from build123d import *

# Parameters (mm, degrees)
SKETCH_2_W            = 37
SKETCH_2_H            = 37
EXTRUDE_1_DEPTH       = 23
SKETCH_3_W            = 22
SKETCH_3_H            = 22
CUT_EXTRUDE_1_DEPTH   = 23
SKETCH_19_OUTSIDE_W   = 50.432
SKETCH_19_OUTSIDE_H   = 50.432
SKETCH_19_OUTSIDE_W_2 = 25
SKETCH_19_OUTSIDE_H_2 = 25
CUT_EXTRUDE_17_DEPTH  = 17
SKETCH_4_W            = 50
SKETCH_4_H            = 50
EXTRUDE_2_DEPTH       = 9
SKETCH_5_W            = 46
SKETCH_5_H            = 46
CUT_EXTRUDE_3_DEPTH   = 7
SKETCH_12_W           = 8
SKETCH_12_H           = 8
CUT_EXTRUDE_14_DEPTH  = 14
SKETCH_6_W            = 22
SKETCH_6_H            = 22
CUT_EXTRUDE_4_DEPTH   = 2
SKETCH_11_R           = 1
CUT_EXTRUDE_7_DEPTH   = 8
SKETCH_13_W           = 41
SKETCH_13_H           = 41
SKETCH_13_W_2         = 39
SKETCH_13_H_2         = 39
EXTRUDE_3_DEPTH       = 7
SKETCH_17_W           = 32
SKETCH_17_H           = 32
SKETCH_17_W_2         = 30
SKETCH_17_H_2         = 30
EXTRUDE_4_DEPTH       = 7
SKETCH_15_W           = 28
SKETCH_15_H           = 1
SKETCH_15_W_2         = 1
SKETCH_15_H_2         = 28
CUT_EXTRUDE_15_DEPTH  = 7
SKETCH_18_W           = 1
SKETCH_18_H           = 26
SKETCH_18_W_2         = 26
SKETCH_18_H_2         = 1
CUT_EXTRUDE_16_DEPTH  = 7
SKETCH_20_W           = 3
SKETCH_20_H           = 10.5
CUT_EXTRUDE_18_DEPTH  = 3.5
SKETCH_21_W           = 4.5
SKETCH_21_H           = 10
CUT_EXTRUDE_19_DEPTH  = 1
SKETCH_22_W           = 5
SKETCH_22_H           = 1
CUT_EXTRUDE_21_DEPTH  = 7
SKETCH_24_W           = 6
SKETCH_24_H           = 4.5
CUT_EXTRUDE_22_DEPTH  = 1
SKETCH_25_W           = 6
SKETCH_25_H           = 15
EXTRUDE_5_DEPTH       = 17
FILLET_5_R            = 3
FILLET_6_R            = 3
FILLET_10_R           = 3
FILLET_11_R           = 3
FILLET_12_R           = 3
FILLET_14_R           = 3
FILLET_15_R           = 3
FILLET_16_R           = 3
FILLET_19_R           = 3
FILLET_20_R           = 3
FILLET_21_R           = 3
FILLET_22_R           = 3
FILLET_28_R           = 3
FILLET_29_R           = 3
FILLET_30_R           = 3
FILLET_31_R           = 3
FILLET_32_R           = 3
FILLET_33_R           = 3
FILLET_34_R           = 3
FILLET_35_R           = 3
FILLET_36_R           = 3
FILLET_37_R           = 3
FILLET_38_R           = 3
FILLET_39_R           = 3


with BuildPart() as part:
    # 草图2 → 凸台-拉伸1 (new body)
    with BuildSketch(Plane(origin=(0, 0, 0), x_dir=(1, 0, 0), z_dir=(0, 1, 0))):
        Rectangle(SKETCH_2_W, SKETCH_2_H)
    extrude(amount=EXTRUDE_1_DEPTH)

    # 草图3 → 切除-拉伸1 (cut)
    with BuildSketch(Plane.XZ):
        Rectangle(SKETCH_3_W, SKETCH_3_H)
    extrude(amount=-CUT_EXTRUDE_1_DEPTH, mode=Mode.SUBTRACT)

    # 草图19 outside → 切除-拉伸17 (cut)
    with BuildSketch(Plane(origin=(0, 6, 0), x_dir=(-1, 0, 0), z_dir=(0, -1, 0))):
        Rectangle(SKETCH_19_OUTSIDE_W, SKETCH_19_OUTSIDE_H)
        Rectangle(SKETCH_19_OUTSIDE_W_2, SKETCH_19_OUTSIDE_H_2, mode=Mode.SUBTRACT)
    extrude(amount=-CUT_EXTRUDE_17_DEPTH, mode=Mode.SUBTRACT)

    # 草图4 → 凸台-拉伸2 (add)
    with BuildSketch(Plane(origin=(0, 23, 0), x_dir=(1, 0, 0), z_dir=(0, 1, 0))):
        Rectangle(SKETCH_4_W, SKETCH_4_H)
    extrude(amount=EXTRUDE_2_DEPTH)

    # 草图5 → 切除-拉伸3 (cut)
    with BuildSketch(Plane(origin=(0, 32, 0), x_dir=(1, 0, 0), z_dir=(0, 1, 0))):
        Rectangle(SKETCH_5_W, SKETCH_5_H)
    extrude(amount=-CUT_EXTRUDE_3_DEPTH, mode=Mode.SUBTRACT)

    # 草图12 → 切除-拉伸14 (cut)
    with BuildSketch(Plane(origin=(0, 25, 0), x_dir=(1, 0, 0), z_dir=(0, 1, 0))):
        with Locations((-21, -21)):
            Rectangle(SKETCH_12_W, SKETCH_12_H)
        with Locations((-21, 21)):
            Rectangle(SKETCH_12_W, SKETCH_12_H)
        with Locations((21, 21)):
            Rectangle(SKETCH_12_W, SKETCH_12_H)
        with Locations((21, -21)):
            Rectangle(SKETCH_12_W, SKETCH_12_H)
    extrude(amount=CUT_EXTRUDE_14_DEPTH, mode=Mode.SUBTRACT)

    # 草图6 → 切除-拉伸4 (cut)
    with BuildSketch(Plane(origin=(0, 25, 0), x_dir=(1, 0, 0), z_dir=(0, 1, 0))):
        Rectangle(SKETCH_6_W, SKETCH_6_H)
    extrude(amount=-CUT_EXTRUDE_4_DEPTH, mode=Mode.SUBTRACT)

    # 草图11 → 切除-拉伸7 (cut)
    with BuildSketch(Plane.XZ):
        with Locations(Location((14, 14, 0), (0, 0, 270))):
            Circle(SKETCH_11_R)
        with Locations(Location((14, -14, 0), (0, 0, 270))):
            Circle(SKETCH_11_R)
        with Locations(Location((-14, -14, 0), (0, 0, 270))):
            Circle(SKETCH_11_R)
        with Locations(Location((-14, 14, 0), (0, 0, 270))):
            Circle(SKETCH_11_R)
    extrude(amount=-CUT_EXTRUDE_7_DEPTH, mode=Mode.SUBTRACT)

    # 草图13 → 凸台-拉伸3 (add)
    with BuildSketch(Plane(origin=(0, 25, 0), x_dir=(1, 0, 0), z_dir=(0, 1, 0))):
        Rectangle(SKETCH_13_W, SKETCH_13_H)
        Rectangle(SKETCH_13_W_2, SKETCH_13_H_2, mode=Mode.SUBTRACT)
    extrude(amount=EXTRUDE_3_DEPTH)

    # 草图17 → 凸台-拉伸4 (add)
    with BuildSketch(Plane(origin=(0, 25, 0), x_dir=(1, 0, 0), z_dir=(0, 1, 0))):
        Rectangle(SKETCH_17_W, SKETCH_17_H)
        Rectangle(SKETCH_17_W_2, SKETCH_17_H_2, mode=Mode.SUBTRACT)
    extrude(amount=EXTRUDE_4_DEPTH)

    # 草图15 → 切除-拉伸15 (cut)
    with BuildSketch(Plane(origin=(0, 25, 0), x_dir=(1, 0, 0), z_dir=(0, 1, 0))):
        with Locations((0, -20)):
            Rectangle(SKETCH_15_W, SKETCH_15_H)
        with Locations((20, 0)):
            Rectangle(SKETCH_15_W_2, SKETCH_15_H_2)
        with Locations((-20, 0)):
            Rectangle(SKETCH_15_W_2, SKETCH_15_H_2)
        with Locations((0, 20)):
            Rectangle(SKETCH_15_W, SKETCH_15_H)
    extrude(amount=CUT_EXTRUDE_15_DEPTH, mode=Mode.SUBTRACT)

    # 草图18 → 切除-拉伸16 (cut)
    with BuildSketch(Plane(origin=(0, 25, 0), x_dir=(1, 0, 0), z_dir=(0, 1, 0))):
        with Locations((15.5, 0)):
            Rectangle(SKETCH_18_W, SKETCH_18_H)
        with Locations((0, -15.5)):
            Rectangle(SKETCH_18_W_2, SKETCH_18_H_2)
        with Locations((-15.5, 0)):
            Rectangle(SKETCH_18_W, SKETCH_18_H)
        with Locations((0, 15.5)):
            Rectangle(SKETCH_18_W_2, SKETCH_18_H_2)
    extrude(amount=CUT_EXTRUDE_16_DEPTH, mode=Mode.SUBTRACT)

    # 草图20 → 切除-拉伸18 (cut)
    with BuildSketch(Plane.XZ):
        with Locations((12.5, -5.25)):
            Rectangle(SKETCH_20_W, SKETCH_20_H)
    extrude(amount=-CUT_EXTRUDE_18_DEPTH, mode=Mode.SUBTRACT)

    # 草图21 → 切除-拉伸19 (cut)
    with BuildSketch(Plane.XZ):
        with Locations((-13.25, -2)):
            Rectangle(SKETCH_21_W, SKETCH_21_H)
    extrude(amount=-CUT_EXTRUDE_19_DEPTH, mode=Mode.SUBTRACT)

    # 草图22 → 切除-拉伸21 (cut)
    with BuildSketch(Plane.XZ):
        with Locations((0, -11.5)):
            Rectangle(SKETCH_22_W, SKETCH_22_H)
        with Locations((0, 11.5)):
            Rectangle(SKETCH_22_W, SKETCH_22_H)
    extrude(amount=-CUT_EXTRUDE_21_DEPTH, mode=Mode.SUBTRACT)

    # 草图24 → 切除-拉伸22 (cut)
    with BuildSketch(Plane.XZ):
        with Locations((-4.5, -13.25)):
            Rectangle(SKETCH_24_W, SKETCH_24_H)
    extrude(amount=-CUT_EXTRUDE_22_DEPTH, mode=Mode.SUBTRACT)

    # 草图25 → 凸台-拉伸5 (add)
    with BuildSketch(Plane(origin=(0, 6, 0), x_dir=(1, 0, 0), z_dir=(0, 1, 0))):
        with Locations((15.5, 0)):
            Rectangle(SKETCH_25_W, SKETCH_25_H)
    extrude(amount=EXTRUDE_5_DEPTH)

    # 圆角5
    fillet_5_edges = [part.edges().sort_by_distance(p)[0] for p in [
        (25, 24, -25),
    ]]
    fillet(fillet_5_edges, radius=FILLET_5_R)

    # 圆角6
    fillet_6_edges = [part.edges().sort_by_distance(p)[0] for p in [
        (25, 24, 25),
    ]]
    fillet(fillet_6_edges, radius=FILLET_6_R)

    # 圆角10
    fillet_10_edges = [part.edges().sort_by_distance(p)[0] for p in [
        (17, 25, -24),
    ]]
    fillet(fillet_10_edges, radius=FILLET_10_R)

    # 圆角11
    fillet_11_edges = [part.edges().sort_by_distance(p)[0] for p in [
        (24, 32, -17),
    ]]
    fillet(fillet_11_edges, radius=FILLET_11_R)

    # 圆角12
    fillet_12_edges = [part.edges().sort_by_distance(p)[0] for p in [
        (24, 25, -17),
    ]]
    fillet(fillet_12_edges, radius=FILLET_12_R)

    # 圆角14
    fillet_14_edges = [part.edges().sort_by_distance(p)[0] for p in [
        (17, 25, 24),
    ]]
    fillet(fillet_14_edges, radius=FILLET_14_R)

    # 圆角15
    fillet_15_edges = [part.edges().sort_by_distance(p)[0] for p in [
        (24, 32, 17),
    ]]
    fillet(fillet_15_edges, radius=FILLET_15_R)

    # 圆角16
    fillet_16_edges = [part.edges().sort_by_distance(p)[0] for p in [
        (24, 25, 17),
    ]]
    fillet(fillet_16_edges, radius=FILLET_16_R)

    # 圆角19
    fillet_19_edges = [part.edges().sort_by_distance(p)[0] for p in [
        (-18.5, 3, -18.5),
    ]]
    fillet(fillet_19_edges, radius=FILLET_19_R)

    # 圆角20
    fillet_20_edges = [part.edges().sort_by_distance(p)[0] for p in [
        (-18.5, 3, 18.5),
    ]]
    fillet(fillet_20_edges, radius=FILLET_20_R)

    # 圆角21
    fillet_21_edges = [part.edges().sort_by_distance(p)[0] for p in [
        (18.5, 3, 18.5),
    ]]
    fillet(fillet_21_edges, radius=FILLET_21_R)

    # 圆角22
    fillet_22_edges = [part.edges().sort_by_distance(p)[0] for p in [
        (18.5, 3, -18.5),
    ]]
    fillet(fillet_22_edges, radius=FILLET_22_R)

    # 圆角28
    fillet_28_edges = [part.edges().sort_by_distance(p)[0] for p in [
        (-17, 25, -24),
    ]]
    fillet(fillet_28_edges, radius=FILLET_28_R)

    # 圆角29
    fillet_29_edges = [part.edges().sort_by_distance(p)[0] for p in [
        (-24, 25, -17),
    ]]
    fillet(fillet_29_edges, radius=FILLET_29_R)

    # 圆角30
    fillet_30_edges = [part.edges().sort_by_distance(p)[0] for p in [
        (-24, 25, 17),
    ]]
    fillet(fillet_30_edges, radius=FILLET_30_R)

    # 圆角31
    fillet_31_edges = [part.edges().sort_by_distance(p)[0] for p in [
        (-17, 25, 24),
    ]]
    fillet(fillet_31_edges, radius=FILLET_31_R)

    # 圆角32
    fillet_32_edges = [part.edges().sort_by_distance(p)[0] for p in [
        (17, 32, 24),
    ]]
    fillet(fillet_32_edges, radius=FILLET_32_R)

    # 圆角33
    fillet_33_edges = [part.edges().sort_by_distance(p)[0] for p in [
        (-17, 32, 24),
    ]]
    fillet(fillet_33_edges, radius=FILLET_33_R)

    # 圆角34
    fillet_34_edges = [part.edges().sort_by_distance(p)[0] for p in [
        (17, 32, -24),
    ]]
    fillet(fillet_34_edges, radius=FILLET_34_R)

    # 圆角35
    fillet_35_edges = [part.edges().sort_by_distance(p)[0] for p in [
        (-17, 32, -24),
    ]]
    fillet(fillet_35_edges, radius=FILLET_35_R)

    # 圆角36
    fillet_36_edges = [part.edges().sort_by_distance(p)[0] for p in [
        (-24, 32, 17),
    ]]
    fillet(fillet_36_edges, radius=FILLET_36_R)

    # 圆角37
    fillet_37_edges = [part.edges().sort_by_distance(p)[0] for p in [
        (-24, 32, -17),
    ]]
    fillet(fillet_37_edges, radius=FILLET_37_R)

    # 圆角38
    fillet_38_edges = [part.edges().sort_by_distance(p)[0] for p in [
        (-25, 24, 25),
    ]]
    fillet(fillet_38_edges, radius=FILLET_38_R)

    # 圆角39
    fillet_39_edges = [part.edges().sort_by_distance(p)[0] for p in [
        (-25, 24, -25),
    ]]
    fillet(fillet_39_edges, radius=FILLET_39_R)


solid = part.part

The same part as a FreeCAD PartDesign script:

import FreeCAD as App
import Part
import Sketcher

V = App.Vector
Q = App.Units.Quantity


def edges_at(feature, points):
    """Names of the edges that pass closest to the given points."""
    edges = feature.Shape.Edges
    near = lambda p: min(range(len(edges)), key=lambda i: edges[i].distToShape(Part.Vertex(*p))[0])
    return sorted({f"Edge{near(p) + 1}" for p in points})

doc = App.newDocument("Part")
body = doc.addObject("PartDesign::Body", "Body")

# Sketch on XZ plane
sketch1 = body.newObject("Sketcher::SketchObject", "Sketch")
sketch1.AttachmentSupport = (doc.getObject("XZ_Plane"), [""])
sketch1.MapMode = "FlatFace"
sketch1.addGeometry([
    Part.LineSegment(V(-18.5, -18.5, 0), V(-18.5, 18.5, 0)),
    Part.LineSegment(V(-18.5, 18.5, 0), V(18.5, 18.5, 0)),
    Part.LineSegment(V(18.5, 18.5, 0), V(18.5, -18.5, 0)),
    Part.LineSegment(V(18.5, -18.5, 0), V(-18.5, -18.5, 0)),
], False)
sketch1.addConstraint([
    Sketcher.Constraint("Coincident", 0, 2, 1, 1),
    Sketcher.Constraint("Coincident", 1, 2, 2, 1),
    Sketcher.Constraint("Coincident", 2, 2, 3, 1),
    Sketcher.Constraint("Coincident", 3, 2, 0, 1),
    Sketcher.Constraint("Vertical", 0),
    Sketcher.Constraint("Horizontal", 1),
    Sketcher.Constraint("Vertical", 2),
    Sketcher.Constraint("Horizontal", 3),
    Sketcher.Constraint("Symmetric", 0, 2, 2, 2, -1, 1),
    Sketcher.Constraint("Equal", 3, 0),
    Sketcher.Constraint("DistanceX", 1, 1, 1, 2, Q("37 mm")),
])
pad1 = body.newObject("PartDesign::Pad", "Pad")
pad1.Profile = sketch1
pad1.Length = 23
pad1.Reversed = True

# Sketch on XZ plane
sketch2 = body.newObject("Sketcher::SketchObject", "Sketch001")
sketch2.AttachmentSupport = (doc.getObject("XZ_Plane"), [""])
sketch2.MapMode = "FlatFace"
sketch2.addGeometry([
    Part.LineSegment(V(-11, 11, 0), V(-11, -11, 0)),
    Part.LineSegment(V(-11, -11, 0), V(11, -11, 0)),
    Part.LineSegment(V(11, -11, 0), V(11, 11, 0)),
    Part.LineSegment(V(11, 11, 0), V(-11, 11, 0)),
], False)
sketch2.addConstraint([
    Sketcher.Constraint("Coincident", 0, 2, 1, 1),
    Sketcher.Constraint("Coincident", 1, 2, 2, 1),
    Sketcher.Constraint("Coincident", 2, 2, 3, 1),
    Sketcher.Constraint("Coincident", 3, 2, 0, 1),
    Sketcher.Constraint("Vertical", 0),
    Sketcher.Constraint("Horizontal", 1),
    Sketcher.Constraint("Vertical", 2),
    Sketcher.Constraint("Horizontal", 3),
    Sketcher.Constraint("Symmetric", 0, 2, 2, 2, -1, 1),
    Sketcher.Constraint("Equal", 3, 0),
    Sketcher.Constraint("DistanceX", 1, 1, 1, 2, Q("22 mm")),
])
pocket1 = body.newObject("PartDesign::Pocket", "Pocket")
pocket1.Profile = sketch2
pocket1.Length = 23

# Sketch on XZ plane
sketch3 = body.newObject("Sketcher::SketchObject", "Sketch002")
sketch3.AttachmentSupport = (doc.getObject("XZ_Plane"), [""])
sketch3.MapMode = "FlatFace"
sketch3.AttachmentOffset = App.Placement(V(0, 0, -6), App.Rotation())
sketch3.addGeometry([
    Part.LineSegment(V(25.216, -25.216, 0), V(25.216, 25.216, 0)),  # 0
    Part.LineSegment(V(25.216, 25.216, 0), V(-25.216, 25.216, 0)),  # 1
    Part.LineSegment(V(-25.216, 25.216, 0), V(-25.216, -25.216, 0)),  # 2
    Part.LineSegment(V(-25.216, -25.216, 0), V(25.216, -25.216, 0)),  # 3
    Part.LineSegment(V(-12.5, 12.5, 0), V(12.5, 12.5, 0)),  # 4
    Part.LineSegment(V(12.5, 12.5, 0), V(12.5, -12.5, 0)),  # 5
    Part.LineSegment(V(12.5, -12.5, 0), V(-12.5, -12.5, 0)),  # 6
    Part.LineSegment(V(-12.5, -12.5, 0), V(-12.5, 12.5, 0)),  # 7
], False)
sketch3.addConstraint([
    Sketcher.Constraint("Coincident", 0, 2, 1, 1),
    Sketcher.Constraint("Coincident", 1, 2, 2, 1),
    Sketcher.Constraint("Coincident", 2, 2, 3, 1),
    Sketcher.Constraint("Coincident", 3, 2, 0, 1),
    Sketcher.Constraint("Coincident", 4, 2, 5, 1),
    Sketcher.Constraint("Coincident", 5, 2, 6, 1),
    Sketcher.Constraint("Coincident", 6, 2, 7, 1),
    Sketcher.Constraint("Coincident", 7, 2, 4, 1),
    Sketcher.Constraint("Vertical", 0),
    Sketcher.Constraint("Horizontal", 1),
    Sketcher.Constraint("Vertical", 2),
    Sketcher.Constraint("Horizontal", 3),
    Sketcher.Constraint("Horizontal", 4),
    Sketcher.Constraint("Vertical", 5),
    Sketcher.Constraint("Horizontal", 6),
    Sketcher.Constraint("Vertical", 7),
    Sketcher.Constraint("Symmetric", 0, 2, 2, 2, -1, 1),
    Sketcher.Constraint("Symmetric", 4, 2, 6, 2, -1, 1),
    Sketcher.Constraint("Equal", 3, 0),
    Sketcher.Constraint("Equal", 6, 5),
    Sketcher.Constraint("DistanceX", 4, 1, 4, 2, Q("25 mm")),
    Sketcher.Constraint("DistanceX", 1, 2, 1, 1, Q("50.432 mm")),
])
pocket2 = body.newObject("PartDesign::Pocket", "Pocket001")
pocket2.Profile = sketch3
pocket2.Length = 17

# Sketch on XZ plane
sketch4 = body.newObject("Sketcher::SketchObject", "Sketch003")
sketch4.AttachmentSupport = (doc.getObject("XZ_Plane"), [""])
sketch4.MapMode = "FlatFace"
sketch4.AttachmentOffset = App.Placement(V(0, 0, -23), App.Rotation())
sketch4.addGeometry([
    Part.LineSegment(V(-25, -25, 0), V(-25, 25, 0)),
    Part.LineSegment(V(-25, 25, 0), V(25, 25, 0)),
    Part.LineSegment(V(25, 25, 0), V(25, -25, 0)),
    Part.LineSegment(V(25, -25, 0), V(-25, -25, 0)),
], False)
sketch4.addConstraint([
    Sketcher.Constraint("Coincident", 0, 2, 1, 1),
    Sketcher.Constraint("Coincident", 1, 2, 2, 1),
    Sketcher.Constraint("Coincident", 2, 2, 3, 1),
    Sketcher.Constraint("Coincident", 3, 2, 0, 1),
    Sketcher.Constraint("Vertical", 0),
    Sketcher.Constraint("Horizontal", 1),
    Sketcher.Constraint("Vertical", 2),
    Sketcher.Constraint("Horizontal", 3),
    Sketcher.Constraint("Symmetric", 0, 2, 2, 2, -1, 1),
    Sketcher.Constraint("Equal", 3, 0),
    Sketcher.Constraint("DistanceX", 1, 1, 1, 2, Q("50 mm")),
])
pad2 = body.newObject("PartDesign::Pad", "Pad001")
pad2.Profile = sketch4
pad2.Length = 9
pad2.Reversed = True

# Sketch on XZ plane
sketch5 = body.newObject("Sketcher::SketchObject", "Sketch004")
sketch5.AttachmentSupport = (doc.getObject("XZ_Plane"), [""])
sketch5.MapMode = "FlatFace"
sketch5.AttachmentOffset = App.Placement(V(0, 0, -32), App.Rotation())
sketch5.addGeometry([
    Part.LineSegment(V(-23, -23, 0), V(-23, 23, 0)),
    Part.LineSegment(V(-23, 23, 0), V(23, 23, 0)),
    Part.LineSegment(V(23, 23, 0), V(23, -23, 0)),
    Part.LineSegment(V(23, -23, 0), V(-23, -23, 0)),
], False)
sketch5.addConstraint([
    Sketcher.Constraint("Coincident", 0, 2, 1, 1),
    Sketcher.Constraint("Coincident", 1, 2, 2, 1),
    Sketcher.Constraint("Coincident", 2, 2, 3, 1),
    Sketcher.Constraint("Coincident", 3, 2, 0, 1),
    Sketcher.Constraint("Vertical", 0),
    Sketcher.Constraint("Horizontal", 1),
    Sketcher.Constraint("Vertical", 2),
    Sketcher.Constraint("Horizontal", 3),
    Sketcher.Constraint("Symmetric", 0, 2, 2, 2, -1, 1),
    Sketcher.Constraint("Equal", 3, 0),
    Sketcher.Constraint("DistanceX", 1, 1, 1, 2, Q("46 mm")),
])
pocket3 = body.newObject("PartDesign::Pocket", "Pocket002")
pocket3.Profile = sketch5
pocket3.Length = 7
pocket3.Reversed = True

# Sketch on XZ plane
sketch6 = body.newObject("Sketcher::SketchObject", "Sketch005")
sketch6.AttachmentSupport = (doc.getObject("XZ_Plane"), [""])
sketch6.MapMode = "FlatFace"
sketch6.AttachmentOffset = App.Placement(V(0, 0, -25), App.Rotation())
sketch6.addGeometry([
    Part.LineSegment(V(-25, 17, 0), V(-25, 25, 0)),  # 0
    Part.LineSegment(V(-25, 25, 0), V(-17, 25, 0)),  # 1
    Part.LineSegment(V(-17, 25, 0), V(-17, 17, 0)),  # 2
    Part.LineSegment(V(-17, 17, 0), V(-25, 17, 0)),  # 3
    Part.LineSegment(V(-25, -25, 0), V(-25, -17, 0)),  # 4
    Part.LineSegment(V(-25, -17, 0), V(-17, -17, 0)),  # 5
    Part.LineSegment(V(-17, -17, 0), V(-17, -25, 0)),  # 6
    Part.LineSegment(V(-17, -25, 0), V(-25, -25, 0)),  # 7
    Part.LineSegment(V(17, -25, 0), V(17, -17, 0)),  # 8
    Part.LineSegment(V(17, -17, 0), V(25, -17, 0)),  # 9
    Part.LineSegment(V(25, -17, 0), V(25, -25, 0)),  # 10
    Part.LineSegment(V(25, -25, 0), V(17, -25, 0)),  # 11
    Part.LineSegment(V(17, 17, 0), V(17, 25, 0)),  # 12
    Part.LineSegment(V(17, 25, 0), V(25, 25, 0)),  # 13
    Part.LineSegment(V(25, 25, 0), V(25, 17, 0)),  # 14
    Part.LineSegment(V(25, 17, 0), V(17, 17, 0)),  # 15
], False)
sketch6.addConstraint([
    Sketcher.Constraint("Coincident", 0, 2, 1, 1),
    Sketcher.Constraint("Coincident", 1, 2, 2, 1),
    Sketcher.Constraint("Coincident", 2, 2, 3, 1),
    Sketcher.Constraint("Coincident", 3, 2, 0, 1),
    Sketcher.Constraint("Coincident", 4, 2, 5, 1),
    Sketcher.Constraint("Coincident", 5, 2, 6, 1),
    Sketcher.Constraint("Coincident", 6, 2, 7, 1),
    Sketcher.Constraint("Coincident", 7, 2, 4, 1),
    Sketcher.Constraint("Coincident", 8, 2, 9, 1),
    Sketcher.Constraint("Coincident", 9, 2, 10, 1),
    Sketcher.Constraint("Coincident", 10, 2, 11, 1),
    Sketcher.Constraint("Coincident", 11, 2, 8, 1),
    Sketcher.Constraint("Coincident", 12, 2, 13, 1),
    Sketcher.Constraint("Coincident", 13, 2, 14, 1),
    Sketcher.Constraint("Coincident", 14, 2, 15, 1),
    Sketcher.Constraint("Coincident", 15, 2, 12, 1),
    Sketcher.Constraint("Vertical", 0),
    Sketcher.Constraint("Horizontal", 1),
    Sketcher.Constraint("Vertical", 2),
    Sketcher.Constraint("Horizontal", 3),
    Sketcher.Constraint("Vertical", 4),
    Sketcher.Constraint("Horizontal", 5),
    Sketcher.Constraint("Vertical", 6),
    Sketcher.Constraint("Horizontal", 7),
    Sketcher.Constraint("Vertical", 8),
    Sketcher.Constraint("Horizontal", 9),
    Sketcher.Constraint("Vertical", 10),
    Sketcher.Constraint("Horizontal", 11),
    Sketcher.Constraint("Vertical", 12),
    Sketcher.Constraint("Horizontal", 13),
    Sketcher.Constraint("Vertical", 14),
    Sketcher.Constraint("Horizontal", 15),
    Sketcher.Constraint("Symmetric", 2, 2, 8, 2, -1, 1),
    Sketcher.Constraint("Symmetric", 0, 2, 10, 2, -1, 1),
    Sketcher.Constraint("Symmetric", 6, 2, 12, 2, -1, 1),
    Sketcher.Constraint("Symmetric", 4, 2, 14, 2, -1, 1),
    Sketcher.Constraint("Symmetric", 5, 2, 8, 2, -2),
    Sketcher.Constraint("Symmetric", 7, 2, 10, 2, -2),
    Sketcher.Constraint("Equal", 15, 0),
    Sketcher.Constraint("DistanceX", 1, 1, 1, 2, Q("8 mm")),
    Sketcher.Constraint("DistanceX", 0, 2, -1, 1, Q("25 mm")),
    Sketcher.Constraint("DistanceY", -1, 1, 0, 2, Q("25 mm")),
])
pocket4 = body.newObject("PartDesign::Pocket", "Pocket003")
pocket4.Profile = sketch6
pocket4.Length = 14

# Sketch on XZ plane
sketch7 = body.newObject("Sketcher::SketchObject", "Sketch006")
sketch7.AttachmentSupport = (doc.getObject("XZ_Plane"), [""])
sketch7.MapMode = "FlatFace"
sketch7.AttachmentOffset = App.Placement(V(0, 0, -25), App.Rotation())
sketch7.addGeometry([
    Part.LineSegment(V(-11, -11, 0), V(-11, 11, 0)),
    Part.LineSegment(V(-11, 11, 0), V(11, 11, 0)),
    Part.LineSegment(V(11, 11, 0), V(11, -11, 0)),
    Part.LineSegment(V(11, -11, 0), V(-11, -11, 0)),
], False)
sketch7.addConstraint([
    Sketcher.Constraint("Coincident", 0, 2, 1, 1),
    Sketcher.Constraint("Coincident", 1, 2, 2, 1),
    Sketcher.Constraint("Coincident", 2, 2, 3, 1),
    Sketcher.Constraint("Coincident", 3, 2, 0, 1),
    Sketcher.Constraint("Vertical", 0),
    Sketcher.Constraint("Horizontal", 1),
    Sketcher.Constraint("Vertical", 2),
    Sketcher.Constraint("Horizontal", 3),
    Sketcher.Constraint("Symmetric", 0, 2, 2, 2, -1, 1),
    Sketcher.Constraint("Equal", 3, 0),
    Sketcher.Constraint("DistanceX", 1, 1, 1, 2, Q("22 mm")),
])
pocket5 = body.newObject("PartDesign::Pocket", "Pocket004")
pocket5.Profile = sketch7
pocket5.Length = 2
pocket5.Reversed = True

# Sketch on XZ plane
sketch8 = body.newObject("Sketcher::SketchObject", "Sketch007")
sketch8.AttachmentSupport = (doc.getObject("XZ_Plane"), [""])
sketch8.MapMode = "FlatFace"
sketch8.addGeometry([
    Part.Circle(V(14, 14, 0), V(0, 0, 1), 1),
    Part.Circle(V(14, -14, 0), V(0, 0, 1), 1),
    Part.Circle(V(-14, -14, 0), V(0, 0, 1), 1),
    Part.Circle(V(-14, 14, 0), V(0, 0, 1), 1),
], False)
sketch8.addConstraint([
    Sketcher.Constraint("Equal", 0, 1),
    Sketcher.Constraint("Equal", 1, 2),
    Sketcher.Constraint("Equal", 2, 3),
    Sketcher.Constraint("Symmetric", 0, 3, 2, 3, -1, 1),
    Sketcher.Constraint("Symmetric", 1, 3, 3, 3, -1, 1),
    Sketcher.Constraint("Symmetric", 1, 3, 2, 3, -2),
    Sketcher.Constraint("Diameter", 0, Q("2 mm")),
    Sketcher.Constraint("DistanceX", -1, 1, 0, 3, Q("14 mm")),
    Sketcher.Constraint("DistanceY", -1, 1, 0, 3, Q("14 mm")),
])
pocket6 = body.newObject("PartDesign::Pocket", "Pocket005")
pocket6.Profile = sketch8
pocket6.Length = 8

# Sketch on XZ plane
sketch9 = body.newObject("Sketcher::SketchObject", "Sketch008")
sketch9.AttachmentSupport = (doc.getObject("XZ_Plane"), [""])
sketch9.MapMode = "FlatFace"
sketch9.AttachmentOffset = App.Placement(V(0, 0, -25), App.Rotation())
sketch9.addGeometry([
    Part.LineSegment(V(-20.5, -20.5, 0), V(-20.5, 20.5, 0)),  # 0
    Part.LineSegment(V(-20.5, 20.5, 0), V(20.5, 20.5, 0)),  # 1
    Part.LineSegment(V(20.5, 20.5, 0), V(20.5, -20.5, 0)),  # 2
    Part.LineSegment(V(20.5, -20.5, 0), V(-20.5, -20.5, 0)),  # 3
    Part.LineSegment(V(19.5, 19.5, 0), V(-19.5, 19.5, 0)),  # 4
    Part.LineSegment(V(-19.5, 19.5, 0), V(-19.5, -19.5, 0)),  # 5
    Part.LineSegment(V(-19.5, -19.5, 0), V(19.5, -19.5, 0)),  # 6
    Part.LineSegment(V(19.5, -19.5, 0), V(19.5, 19.5, 0)),  # 7
], False)
sketch9.addConstraint([
    Sketcher.Constraint("Coincident", 0, 2, 1, 1),
    Sketcher.Constraint("Coincident", 1, 2, 2, 1),
    Sketcher.Constraint("Coincident", 2, 2, 3, 1),
    Sketcher.Constraint("Coincident", 3, 2, 0, 1),
    Sketcher.Constraint("Coincident", 4, 2, 5, 1),
    Sketcher.Constraint("Coincident", 5, 2, 6, 1),
    Sketcher.Constraint("Coincident", 6, 2, 7, 1),
    Sketcher.Constraint("Coincident", 7, 2, 4, 1),
    Sketcher.Constraint("Vertical", 0),
    Sketcher.Constraint("Horizontal", 1),
    Sketcher.Constraint("Vertical", 2),
    Sketcher.Constraint("Horizontal", 3),
    Sketcher.Constraint("Horizontal", 4),
    Sketcher.Constraint("Vertical", 5),
    Sketcher.Constraint("Horizontal", 6),
    Sketcher.Constraint("Vertical", 7),
    Sketcher.Constraint("Symmetric", 0, 2, 2, 2, -1, 1),
    Sketcher.Constraint("Symmetric", 4, 2, 6, 2, -1, 1),
    Sketcher.Constraint("Equal", 3, 0),
    Sketcher.Constraint("Equal", 6, 5),
    Sketcher.Constraint("DistanceX", 1, 1, 1, 2, Q("41 mm")),
    Sketcher.Constraint("DistanceX", 4, 2, 4, 1, Q("39 mm")),
])
pad3 = body.newObject("PartDesign::Pad", "Pad002")
pad3.Profile = sketch9
pad3.Length = 7
pad3.Reversed = True

# Sketch on XZ plane
sketch10 = body.newObject("Sketcher::SketchObject", "Sketch009")
sketch10.AttachmentSupport = (doc.getObject("XZ_Plane"), [""])
sketch10.MapMode = "FlatFace"
sketch10.AttachmentOffset = App.Placement(V(0, 0, -25), App.Rotation())
sketch10.addGeometry([
    Part.LineSegment(V(-16, -16, 0), V(-16, 16, 0)),  # 0
    Part.LineSegment(V(-16, 16, 0), V(16, 16, 0)),  # 1
    Part.LineSegment(V(16, 16, 0), V(16, -16, 0)),  # 2
    Part.LineSegment(V(16, -16, 0), V(-16, -16, 0)),  # 3
    Part.LineSegment(V(15, 15, 0), V(-15, 15, 0)),  # 4
    Part.LineSegment(V(-15, 15, 0), V(-15, -15, 0)),  # 5
    Part.LineSegment(V(-15, -15, 0), V(15, -15, 0)),  # 6
    Part.LineSegment(V(15, -15, 0), V(15, 15, 0)),  # 7
], False)
sketch10.addConstraint([
    Sketcher.Constraint("Coincident", 0, 2, 1, 1),
    Sketcher.Constraint("Coincident", 1, 2, 2, 1),
    Sketcher.Constraint("Coincident", 2, 2, 3, 1),
    Sketcher.Constraint("Coincident", 3, 2, 0, 1),
    Sketcher.Constraint("Coincident", 4, 2, 5, 1),
    Sketcher.Constraint("Coincident", 5, 2, 6, 1),
    Sketcher.Constraint("Coincident", 6, 2, 7, 1),
    Sketcher.Constraint("Coincident", 7, 2, 4, 1),
    Sketcher.Constraint("Vertical", 0),
    Sketcher.Constraint("Horizontal", 1),
    Sketcher.Constraint("Vertical", 2),
    Sketcher.Constraint("Horizontal", 3),
    Sketcher.Constraint("Horizontal", 4),
    Sketcher.Constraint("Vertical", 5),
    Sketcher.Constraint("Horizontal", 6),
    Sketcher.Constraint("Vertical", 7),
    Sketcher.Constraint("Symmetric", 0, 2, 2, 2, -1, 1),
    Sketcher.Constraint("Symmetric", 4, 2, 6, 2, -1, 1),
    Sketcher.Constraint("Equal", 3, 0),
    Sketcher.Constraint("Equal", 6, 5),
    Sketcher.Constraint("DistanceX", 1, 1, 1, 2, Q("32 mm")),
    Sketcher.Constraint("DistanceX", 4, 2, 4, 1, Q("30 mm")),
])
pad4 = body.newObject("PartDesign::Pad", "Pad003")
pad4.Profile = sketch10
pad4.Length = 7
pad4.Reversed = True

# Sketch on XZ plane
sketch11 = body.newObject("Sketcher::SketchObject", "Sketch010")
sketch11.AttachmentSupport = (doc.getObject("XZ_Plane"), [""])
sketch11.MapMode = "FlatFace"
sketch11.AttachmentOffset = App.Placement(V(0, 0, -25), App.Rotation())
sketch11.addGeometry([
    Part.LineSegment(V(-14, 19.5, 0), V(-14, 20.5, 0)),  # 0
    Part.LineSegment(V(-14, 20.5, 0), V(14, 20.5, 0)),  # 1
    Part.LineSegment(V(14, 20.5, 0), V(14, 19.5, 0)),  # 2
    Part.LineSegment(V(14, 19.5, 0), V(-14, 19.5, 0)),  # 3
    Part.LineSegment(V(19.5, -14, 0), V(19.5, 14, 0)),  # 4
    Part.LineSegment(V(19.5, 14, 0), V(20.5, 14, 0)),  # 5
    Part.LineSegment(V(20.5, 14, 0), V(20.5, -14, 0)),  # 6
    Part.LineSegment(V(20.5, -14, 0), V(19.5, -14, 0)),  # 7
    Part.LineSegment(V(-20.5, -14, 0), V(-20.5, 14, 0)),  # 8
    Part.LineSegment(V(-20.5, 14, 0), V(-19.5, 14, 0)),  # 9
    Part.LineSegment(V(-19.5, 14, 0), V(-19.5, -14, 0)),  # 10
    Part.LineSegment(V(-19.5, -14, 0), V(-20.5, -14, 0)),  # 11
    Part.LineSegment(V(-14, -20.5, 0), V(-14, -19.5, 0)),  # 12
    Part.LineSegment(V(-14, -19.5, 0), V(14, -19.5, 0)),  # 13
    Part.LineSegment(V(14, -19.5, 0), V(14, -20.5, 0)),  # 14
    Part.LineSegment(V(14, -20.5, 0), V(-14, -20.5, 0)),  # 15
], False)
sketch11.addConstraint([
    Sketcher.Constraint("Coincident", 0, 2, 1, 1),
    Sketcher.Constraint("Coincident", 1, 2, 2, 1),
    Sketcher.Constraint("Coincident", 2, 2, 3, 1),
    Sketcher.Constraint("Coincident", 3, 2, 0, 1),
    Sketcher.Constraint("Coincident", 4, 2, 5, 1),
    Sketcher.Constraint("Coincident", 5, 2, 6, 1),
    Sketcher.Constraint("Coincident", 6, 2, 7, 1),
    Sketcher.Constraint("Coincident", 7, 2, 4, 1),
    Sketcher.Constraint("Coincident", 8, 2, 9, 1),
    Sketcher.Constraint("Coincident", 9, 2, 10, 1),
    Sketcher.Constraint("Coincident", 10, 2, 11, 1),
    Sketcher.Constraint("Coincident", 11, 2, 8, 1),
    Sketcher.Constraint("Coincident", 12, 2, 13, 1),
    Sketcher.Constraint("Coincident", 13, 2, 14, 1),
    Sketcher.Constraint("Coincident", 14, 2, 15, 1),
    Sketcher.Constraint("Coincident", 15, 2, 12, 1),
    Sketcher.Constraint("Vertical", 0),
    Sketcher.Constraint("Horizontal", 1),
    Sketcher.Constraint("Vertical", 2),
    Sketcher.Constraint("Horizontal", 3),
    Sketcher.Constraint("Vertical", 4),
    Sketcher.Constraint("Horizontal", 5),
    Sketcher.Constraint("Vertical", 6),
    Sketcher.Constraint("Horizontal", 7),
    Sketcher.Constraint("Vertical", 8),
    Sketcher.Constraint("Horizontal", 9),
    Sketcher.Constraint("Vertical", 10),
    Sketcher.Constraint("Horizontal", 11),
    Sketcher.Constraint("Vertical", 12),
    Sketcher.Constraint("Horizontal", 13),
    Sketcher.Constraint("Vertical", 14),
    Sketcher.Constraint("Horizontal", 15),
    Sketcher.Constraint("Symmetric", 6, 2, 8, 2, -1, 1),
    Sketcher.Constraint("Symmetric", 4, 2, 10, 2, -1, 1),
    Sketcher.Constraint("Symmetric", 2, 2, 12, 2, -1, 1),
    Sketcher.Constraint("Symmetric", 0, 2, 14, 2, -1, 1),
    Sketcher.Constraint("Horizontal", 5, 2, 8, 2),
    Sketcher.Constraint("Vertical", 3, 2, 12, 2),
    Sketcher.Constraint("Equal", 11, 0),
    Sketcher.Constraint("Equal", 15, 4),
    Sketcher.Constraint("DistanceX", 1, 1, 1, 2, Q("28 mm")),
    Sketcher.Constraint("DistanceX", 5, 1, 5, 2, Q("1 mm")),
    Sketcher.Constraint("DistanceX", 8, 2, 4, 2, Q("40 mm")),
    Sketcher.Constraint("DistanceY", -1, 1, 0, 2, Q("20.5 mm")),
])
pocket7 = body.newObject("PartDesign::Pocket", "Pocket006")
pocket7.Profile = sketch11
pocket7.Length = 7

# Sketch on XZ plane
sketch12 = body.newObject("Sketcher::SketchObject", "Sketch011")
sketch12.AttachmentSupport = (doc.getObject("XZ_Plane"), [""])
sketch12.MapMode = "FlatFace"
sketch12.AttachmentOffset = App.Placement(V(0, 0, -25), App.Rotation())
sketch12.addGeometry([
    Part.LineSegment(V(15, -13, 0), V(15, 13, 0)),  # 0
    Part.LineSegment(V(15, 13, 0), V(16, 13, 0)),  # 1
    Part.LineSegment(V(16, 13, 0), V(16, -13, 0)),  # 2
    Part.LineSegment(V(16, -13, 0), V(15, -13, 0)),  # 3
    Part.LineSegment(V(-13, 15, 0), V(-13, 16, 0)),  # 4
    Part.LineSegment(V(-13, 16, 0), V(13, 16, 0)),  # 5
    Part.LineSegment(V(13, 16, 0), V(13, 15, 0)),  # 6
    Part.LineSegment(V(13, 15, 0), V(-13, 15, 0)),  # 7
    Part.LineSegment(V(-16, -13, 0), V(-16, 13, 0)),  # 8
    Part.LineSegment(V(-16, 13, 0), V(-15, 13, 0)),  # 9
    Part.LineSegment(V(-15, 13, 0), V(-15, -13, 0)),  # 10
    Part.LineSegment(V(-15, -13, 0), V(-16, -13, 0)),  # 11
    Part.LineSegment(V(-13, -16, 0), V(-13, -15, 0)),  # 12
    Part.LineSegment(V(-13, -15, 0), V(13, -15, 0)),  # 13
    Part.LineSegment(V(13, -15, 0), V(13, -16, 0)),  # 14
    Part.LineSegment(V(13, -16, 0), V(-13, -16, 0)),  # 15
], False)
sketch12.addConstraint([
    Sketcher.Constraint("Coincident", 0, 2, 1, 1),
    Sketcher.Constraint("Coincident", 1, 2, 2, 1),
    Sketcher.Constraint("Coincident", 2, 2, 3, 1),
    Sketcher.Constraint("Coincident", 3, 2, 0, 1),
    Sketcher.Constraint("Coincident", 4, 2, 5, 1),
    Sketcher.Constraint("Coincident", 5, 2, 6, 1),
    Sketcher.Constraint("Coincident", 6, 2, 7, 1),
    Sketcher.Constraint("Coincident", 7, 2, 4, 1),
    Sketcher.Constraint("Coincident", 8, 2, 9, 1),
    Sketcher.Constraint("Coincident", 9, 2, 10, 1),
    Sketcher.Constraint("Coincident", 10, 2, 11, 1),
    Sketcher.Constraint("Coincident", 11, 2, 8, 1),
    Sketcher.Constraint("Coincident", 12, 2, 13, 1),
    Sketcher.Constraint("Coincident", 13, 2, 14, 1),
    Sketcher.Constraint("Coincident", 14, 2, 15, 1),
    Sketcher.Constraint("Coincident", 15, 2, 12, 1),
    Sketcher.Constraint("Vertical", 0),
    Sketcher.Constraint("Horizontal", 1),
    Sketcher.Constraint("Vertical", 2),
    Sketcher.Constraint("Horizontal", 3),
    Sketcher.Constraint("Vertical", 4),
    Sketcher.Constraint("Horizontal", 5),
    Sketcher.Constraint("Vertical", 6),
    Sketcher.Constraint("Horizontal", 7),
    Sketcher.Constraint("Vertical", 8),
    Sketcher.Constraint("Horizontal", 9),
    Sketcher.Constraint("Vertical", 10),
    Sketcher.Constraint("Horizontal", 11),
    Sketcher.Constraint("Vertical", 12),
    Sketcher.Constraint("Horizontal", 13),
    Sketcher.Constraint("Vertical", 14),
    Sketcher.Constraint("Horizontal", 15),
    Sketcher.Constraint("Symmetric", 2, 2, 8, 2, -1, 1),
    Sketcher.Constraint("Symmetric", 0, 2, 10, 2, -1, 1),
    Sketcher.Constraint("Symmetric", 6, 2, 12, 2, -1, 1),
    Sketcher.Constraint("Symmetric", 4, 2, 14, 2, -1, 1),
    Sketcher.Constraint("Horizontal", 1, 2, 8, 2),
    Sketcher.Constraint("Vertical", 7, 2, 12, 2),
    Sketcher.Constraint("Equal", 15, 0),
    Sketcher.Constraint("Equal", 11, 4),
    Sketcher.Constraint("DistanceX", 1, 1, 1, 2, Q("1 mm")),
    Sketcher.Constraint("DistanceX", 5, 1, 5, 2, Q("26 mm")),
    Sketcher.Constraint("DistanceX", -1, 1, 0, 2, Q("15 mm")),
    Sketcher.Constraint("DistanceY", -1, 1, 4, 2, Q("16 mm")),
])
pocket8 = body.newObject("PartDesign::Pocket", "Pocket007")
pocket8.Profile = sketch12
pocket8.Length = 7

# Sketch on XZ plane
sketch13 = body.newObject("Sketcher::SketchObject", "Sketch012")
sketch13.AttachmentSupport = (doc.getObject("XZ_Plane"), [""])
sketch13.MapMode = "FlatFace"
sketch13.addGeometry([
    Part.LineSegment(V(11, 0, 0), V(11, -10.5, 0)),
    Part.LineSegment(V(11, -10.5, 0), V(14, -10.5, 0)),
    Part.LineSegment(V(14, -10.5, 0), V(14, 0, 0)),
    Part.LineSegment(V(14, 0, 0), V(11, 0, 0)),
], False)
sketch13.addConstraint([
    Sketcher.Constraint("Coincident", 0, 2, 1, 1),
    Sketcher.Constraint("Coincident", 1, 2, 2, 1),
    Sketcher.Constraint("Coincident", 2, 2, 3, 1),
    Sketcher.Constraint("Coincident", 3, 2, 0, 1),
    Sketcher.Constraint("Vertical", 0),
    Sketcher.Constraint("Horizontal", 1),
    Sketcher.Constraint("Vertical", 2),
    Sketcher.Constraint("Horizontal", 3),
    Sketcher.Constraint("PointOnObject", 2, 2, -1),
    Sketcher.Constraint("DistanceX", 1, 1, 1, 2, Q("3 mm")),
    Sketcher.Constraint("DistanceY", 0, 2, 0, 1, Q("10.5 mm")),
    Sketcher.Constraint("DistanceX", -1, 1, 0, 2, Q("11 mm")),
])
pocket9 = body.newObject("PartDesign::Pocket", "Pocket008")
pocket9.Profile = sketch13
pocket9.Length = 3.5

# Sketch on XZ plane
sketch14 = body.newObject("Sketcher::SketchObject", "Sketch013")
sketch14.AttachmentSupport = (doc.getObject("XZ_Plane"), [""])
sketch14.MapMode = "FlatFace"
sketch14.addGeometry([
    Part.LineSegment(V(-15.5, 3, 0), V(-15.5, -7, 0)),
    Part.LineSegment(V(-15.5, -7, 0), V(-11, -7, 0)),
    Part.LineSegment(V(-11, -7, 0), V(-11, 3, 0)),
    Part.LineSegment(V(-11, 3, 0), V(-15.5, 3, 0)),
], False)
sketch14.addConstraint([
    Sketcher.Constraint("Coincident", 0, 2, 1, 1),
    Sketcher.Constraint("Coincident", 1, 2, 2, 1),
    Sketcher.Constraint("Coincident", 2, 2, 3, 1),
    Sketcher.Constraint("Coincident", 3, 2, 0, 1),
    Sketcher.Constraint("Vertical", 0),
    Sketcher.Constraint("Horizontal", 1),
    Sketcher.Constraint("Vertical", 2),
    Sketcher.Constraint("Horizontal", 3),
    Sketcher.Constraint("DistanceY", 0, 2, 0, 1, Q("10 mm")),
    Sketcher.Constraint("DistanceX", 1, 1, 1, 2, Q("4.5 mm")),
    Sketcher.Constraint("DistanceY", 0, 2, -1, 1, Q("7 mm")),
    Sketcher.Constraint("DistanceX", 1, 2, -1, 1, Q("11 mm")),
])
pocket10 = body.newObject("PartDesign::Pocket", "Pocket009")
pocket10.Profile = sketch14
pocket10.Length = 1

# Sketch on XZ plane
sketch15 = body.newObject("Sketcher::SketchObject", "Sketch014")
sketch15.AttachmentSupport = (doc.getObject("XZ_Plane"), [""])
sketch15.MapMode = "FlatFace"
sketch15.addGeometry([
    Part.LineSegment(V(-2.5, -11, 0), V(-2.5, -12, 0)),  # 0
    Part.LineSegment(V(-2.5, -12, 0), V(2.5, -12, 0)),  # 1
    Part.LineSegment(V(2.5, -12, 0), V(2.5, -11, 0)),  # 2
    Part.LineSegment(V(2.5, -11, 0), V(-2.5, -11, 0)),  # 3
    Part.LineSegment(V(-2.5, 12, 0), V(-2.5, 11, 0)),  # 4
    Part.LineSegment(V(-2.5, 11, 0), V(2.5, 11, 0)),  # 5
    Part.LineSegment(V(2.5, 11, 0), V(2.5, 12, 0)),  # 6
    Part.LineSegment(V(2.5, 12, 0), V(-2.5, 12, 0)),  # 7
], False)
sketch15.addConstraint([
    Sketcher.Constraint("Coincident", 0, 2, 1, 1),
    Sketcher.Constraint("Coincident", 1, 2, 2, 1),
    Sketcher.Constraint("Coincident", 2, 2, 3, 1),
    Sketcher.Constraint("Coincident", 3, 2, 0, 1),
    Sketcher.Constraint("Coincident", 4, 2, 5, 1),
    Sketcher.Constraint("Coincident", 5, 2, 6, 1),
    Sketcher.Constraint("Coincident", 6, 2, 7, 1),
    Sketcher.Constraint("Coincident", 7, 2, 4, 1),
    Sketcher.Constraint("Vertical", 0),
    Sketcher.Constraint("Horizontal", 1),
    Sketcher.Constraint("Vertical", 2),
    Sketcher.Constraint("Horizontal", 3),
    Sketcher.Constraint("Vertical", 4),
    Sketcher.Constraint("Horizontal", 5),
    Sketcher.Constraint("Vertical", 6),
    Sketcher.Constraint("Horizontal", 7),
    Sketcher.Constraint("Symmetric", 2, 2, 4, 2, -1, 1),
    Sketcher.Constraint("Symmetric", 0, 2, 6, 2, -1, 1),
    Sketcher.Constraint("Vertical", 3, 2, 4, 2),
    Sketcher.Constraint("DistanceX", 1, 1, 1, 2, Q("5 mm")),
    Sketcher.Constraint("DistanceY", 0, 2, 0, 1, Q("1 mm")),
    Sketcher.Constraint("DistanceY", 0, 2, -1, 1, Q("12 mm")),
])
pocket11 = body.newObject("PartDesign::Pocket", "Pocket010")
pocket11.Profile = sketch15
pocket11.Length = 7

# Sketch on XZ plane
sketch16 = body.newObject("Sketcher::SketchObject", "Sketch015")
sketch16.AttachmentSupport = (doc.getObject("XZ_Plane"), [""])
sketch16.MapMode = "FlatFace"
sketch16.addGeometry([
    Part.LineSegment(V(-7.5, -11, 0), V(-7.5, -15.5, 0)),
    Part.LineSegment(V(-7.5, -15.5, 0), V(-1.5, -15.5, 0)),
    Part.LineSegment(V(-1.5, -15.5, 0), V(-1.5, -11, 0)),
    Part.LineSegment(V(-1.5, -11, 0), V(-7.5, -11, 0)),
], False)
sketch16.addConstraint([
    Sketcher.Constraint("Coincident", 0, 2, 1, 1),
    Sketcher.Constraint("Coincident", 1, 2, 2, 1),
    Sketcher.Constraint("Coincident", 2, 2, 3, 1),
    Sketcher.Constraint("Coincident", 3, 2, 0, 1),
    Sketcher.Constraint("Vertical", 0),
    Sketcher.Constraint("Horizontal", 1),
    Sketcher.Constraint("Vertical", 2),
    Sketcher.Constraint("Horizontal", 3),
    Sketcher.Constraint("DistanceX", 1, 1, 1, 2, Q("6 mm")),
    Sketcher.Constraint("DistanceY", 0, 2, 0, 1, Q("4.5 mm")),
    Sketcher.Constraint("DistanceY", 2, 2, -1, 1, Q("11 mm")),
    Sketcher.Constraint("DistanceX", 0, 2, -1, 1, Q("7.5 mm")),
])
pocket12 = body.newObject("PartDesign::Pocket", "Pocket011")
pocket12.Profile = sketch16
pocket12.Length = 1

# Sketch on XZ plane
sketch17 = body.newObject("Sketcher::SketchObject", "Sketch016")
sketch17.AttachmentSupport = (doc.getObject("XZ_Plane"), [""])
sketch17.MapMode = "FlatFace"
sketch17.AttachmentOffset = App.Placement(V(0, 0, -6), App.Rotation())
sketch17.addGeometry([
    Part.LineSegment(V(12.5, -7.5, 0), V(12.5, 7.5, 0)),
    Part.LineSegment(V(12.5, 7.5, 0), V(18.5, 7.5, 0)),
    Part.LineSegment(V(18.5, 7.5, 0), V(18.5, -7.5, 0)),
    Part.LineSegment(V(18.5, -7.5, 0), V(12.5, -7.5, 0)),
], False)
sketch17.addConstraint([
    Sketcher.Constraint("Coincident", 0, 2, 1, 1),
    Sketcher.Constraint("Coincident", 1, 2, 2, 1),
    Sketcher.Constraint("Coincident", 2, 2, 3, 1),
    Sketcher.Constraint("Coincident", 3, 2, 0, 1),
    Sketcher.Constraint("Vertical", 0),
    Sketcher.Constraint("Horizontal", 1),
    Sketcher.Constraint("Vertical", 2),
    Sketcher.Constraint("Horizontal", 3),
    Sketcher.Constraint("DistanceX", 1, 1, 1, 2, Q("6 mm")),
    Sketcher.Constraint("DistanceY", 0, 1, 0, 2, Q("15 mm")),
    Sketcher.Constraint("DistanceX", -1, 1, 0, 2, Q("12.5 mm")),
    Sketcher.Constraint("DistanceY", -1, 1, 0, 2, Q("7.5 mm")),
])
pad5 = body.newObject("PartDesign::Pad", "Pad004")
pad5.Profile = sketch17
pad5.Length = 17
pad5.Reversed = True
doc.recompute()

fillet = body.newObject("PartDesign::Fillet", "Fillet")
fillet.Base = (pad5, edges_at(pad5, [(25, 24, -25)]))
fillet.Radius = 3
doc.recompute()

fillet2 = body.newObject("PartDesign::Fillet", "Fillet001")
fillet2.Base = (fillet, edges_at(fillet, [(25, 24, 25)]))
fillet2.Radius = 3
doc.recompute()

fillet3 = body.newObject("PartDesign::Fillet", "Fillet002")
fillet3.Base = (fillet2, edges_at(fillet2, [(17, 25, -24)]))
fillet3.Radius = 3
doc.recompute()

fillet4 = body.newObject("PartDesign::Fillet", "Fillet003")
fillet4.Base = (fillet3, edges_at(fillet3, [(24, 32, -17)]))
fillet4.Radius = 3
doc.recompute()

fillet5 = body.newObject("PartDesign::Fillet", "Fillet004")
fillet5.Base = (fillet4, edges_at(fillet4, [(24, 25, -17)]))
fillet5.Radius = 3
doc.recompute()

fillet6 = body.newObject("PartDesign::Fillet", "Fillet005")
fillet6.Base = (fillet5, edges_at(fillet5, [(17, 25, 24)]))
fillet6.Radius = 3
doc.recompute()

fillet7 = body.newObject("PartDesign::Fillet", "Fillet006")
fillet7.Base = (fillet6, edges_at(fillet6, [(24, 32, 17)]))
fillet7.Radius = 3
doc.recompute()

fillet8 = body.newObject("PartDesign::Fillet", "Fillet007")
fillet8.Base = (fillet7, edges_at(fillet7, [(24, 25, 17)]))
fillet8.Radius = 3
doc.recompute()

fillet9 = body.newObject("PartDesign::Fillet", "Fillet008")
fillet9.Base = (fillet8, edges_at(fillet8, [(-18.5, 3, -18.5)]))
fillet9.Radius = 3
doc.recompute()

fillet10 = body.newObject("PartDesign::Fillet", "Fillet009")
fillet10.Base = (fillet9, edges_at(fillet9, [(-18.5, 3, 18.5)]))
fillet10.Radius = 3
doc.recompute()

fillet11 = body.newObject("PartDesign::Fillet", "Fillet010")
fillet11.Base = (fillet10, edges_at(fillet10, [(18.5, 3, 18.5)]))
fillet11.Radius = 3
doc.recompute()

fillet12 = body.newObject("PartDesign::Fillet", "Fillet011")
fillet12.Base = (fillet11, edges_at(fillet11, [(18.5, 3, -18.5)]))
fillet12.Radius = 3
doc.recompute()

fillet13 = body.newObject("PartDesign::Fillet", "Fillet012")
fillet13.Base = (fillet12, edges_at(fillet12, [(-17, 25, -24)]))
fillet13.Radius = 3
doc.recompute()

fillet14 = body.newObject("PartDesign::Fillet", "Fillet013")
fillet14.Base = (fillet13, edges_at(fillet13, [(-24, 25, -17)]))
fillet14.Radius = 3
doc.recompute()

fillet15 = body.newObject("PartDesign::Fillet", "Fillet014")
fillet15.Base = (fillet14, edges_at(fillet14, [(-24, 25, 17)]))
fillet15.Radius = 3
doc.recompute()

fillet16 = body.newObject("PartDesign::Fillet", "Fillet015")
fillet16.Base = (fillet15, edges_at(fillet15, [(-17, 25, 24)]))
fillet16.Radius = 3
doc.recompute()

fillet17 = body.newObject("PartDesign::Fillet", "Fillet016")
fillet17.Base = (fillet16, edges_at(fillet16, [(17, 32, 24)]))
fillet17.Radius = 3
doc.recompute()

fillet18 = body.newObject("PartDesign::Fillet", "Fillet017")
fillet18.Base = (fillet17, edges_at(fillet17, [(-17, 32, 24)]))
fillet18.Radius = 3
doc.recompute()

fillet19 = body.newObject("PartDesign::Fillet", "Fillet018")
fillet19.Base = (fillet18, edges_at(fillet18, [(17, 32, -24)]))
fillet19.Radius = 3
doc.recompute()

fillet20 = body.newObject("PartDesign::Fillet", "Fillet019")
fillet20.Base = (fillet19, edges_at(fillet19, [(-17, 32, -24)]))
fillet20.Radius = 3
doc.recompute()

fillet21 = body.newObject("PartDesign::Fillet", "Fillet020")
fillet21.Base = (fillet20, edges_at(fillet20, [(-24, 32, 17)]))
fillet21.Radius = 3
doc.recompute()

fillet22 = body.newObject("PartDesign::Fillet", "Fillet021")
fillet22.Base = (fillet21, edges_at(fillet21, [(-24, 32, -17)]))
fillet22.Radius = 3
doc.recompute()

fillet23 = body.newObject("PartDesign::Fillet", "Fillet022")
fillet23.Base = (fillet22, edges_at(fillet22, [(-25, 24, 25)]))
fillet23.Radius = 3
doc.recompute()

fillet24 = body.newObject("PartDesign::Fillet", "Fillet023")
fillet24.Base = (fillet23, edges_at(fillet23, [(-25, 24, -25)]))
fillet24.Radius = 3

doc.recompute()
